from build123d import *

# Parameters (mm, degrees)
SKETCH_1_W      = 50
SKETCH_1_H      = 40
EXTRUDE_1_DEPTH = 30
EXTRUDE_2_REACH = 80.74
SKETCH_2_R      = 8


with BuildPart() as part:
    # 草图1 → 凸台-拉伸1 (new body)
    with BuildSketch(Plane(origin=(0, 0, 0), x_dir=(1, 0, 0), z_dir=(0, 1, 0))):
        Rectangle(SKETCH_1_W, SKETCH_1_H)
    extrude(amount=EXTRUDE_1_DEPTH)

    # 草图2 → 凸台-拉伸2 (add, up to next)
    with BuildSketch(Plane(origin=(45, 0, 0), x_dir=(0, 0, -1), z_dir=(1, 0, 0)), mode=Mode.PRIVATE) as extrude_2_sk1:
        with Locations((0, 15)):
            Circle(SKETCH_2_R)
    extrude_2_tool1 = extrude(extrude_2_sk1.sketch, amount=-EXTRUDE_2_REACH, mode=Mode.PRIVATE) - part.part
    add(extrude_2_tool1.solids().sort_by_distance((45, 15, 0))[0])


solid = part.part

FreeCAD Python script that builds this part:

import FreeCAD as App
import Part
import Sketcher

doc = App.newDocument("Part")
body = doc.addObject("PartDesign::Body", "Body")

# Sketch on XZ plane
sketch1 = body.newObject("Sketcher::SketchObject", "Sketch")
sketch1.AttachmentSupport = (doc.getObject("XZ_Plane"), [""])
sketch1.MapMode = "FlatFace"
sketch1.addGeometry([
    Part.LineSegment(App.Vector(-25, -20, 0), App.Vector(-25, 20, 0)),
    Part.LineSegment(App.Vector(-25, 20, 0), App.Vector(25, 20, 0)),
    Part.LineSegment(App.Vector(25, 20, 0), App.Vector(25, -20, 0)),
    Part.LineSegment(App.Vector(25, -20, 0), App.Vector(-25, -20, 0)),
], False)
sketch1.addConstraint([
    Sketcher.Constraint("Coincident", 0, 2, 1, 1),
    Sketcher.Constraint("Coincident", 1, 2, 2, 1),
    Sketcher.Constraint("Coincident", 2, 2, 3, 1),
    Sketcher.Constraint("Coincident", 3, 2, 0, 1),
    Sketcher.Constraint("Vertical", 0),
    Sketcher.Constraint("Horizontal", 1),
    Sketcher.Constraint("Vertical", 2),
    Sketcher.Constraint("Horizontal", 3),
    Sketcher.Constraint("Symmetric", 0, 2, 2, 2, -1, 1),
    Sketcher.Constraint("DistanceX", 1, 1, 1, 2, 50.0),
    Sketcher.Constraint("DistanceY", 0, 1, 0, 2, 40.0),
])
pad1 = body.newObject("PartDesign::Pad", "Pad")
pad1.Profile = sketch1
pad1.Length = 30
pad1.Reversed = True

# Sketch on YZ plane
sketch2 = body.newObject("Sketcher::SketchObject", "Sketch001")
sketch2.AttachmentSupport = (doc.getObject("YZ_Plane"), [""])
sketch2.MapMode = "FlatFace"
sketch2.AttachmentOffset = App.Placement(App.Vector(0, 0, 45), App.Rotation())
sketch2.addGeometry(Part.Circle(App.Vector(15, 0, 0), App.Vector(0, 0, 1), 8), False)
sketch2.addConstraint([
    Sketcher.Constraint("PointOnObject", 0, 3, -1),
    Sketcher.Constraint("Diameter", 0, 16.0),
    Sketcher.Constraint("DistanceX", -1, 1, 0, 3, 15.0),
])
pad2 = body.newObject("PartDesign::Pad", "Pad001")
pad2.Profile = sketch2
pad2.Type = "UpToFirst"
pad2.Reversed = True

doc.recompute()
